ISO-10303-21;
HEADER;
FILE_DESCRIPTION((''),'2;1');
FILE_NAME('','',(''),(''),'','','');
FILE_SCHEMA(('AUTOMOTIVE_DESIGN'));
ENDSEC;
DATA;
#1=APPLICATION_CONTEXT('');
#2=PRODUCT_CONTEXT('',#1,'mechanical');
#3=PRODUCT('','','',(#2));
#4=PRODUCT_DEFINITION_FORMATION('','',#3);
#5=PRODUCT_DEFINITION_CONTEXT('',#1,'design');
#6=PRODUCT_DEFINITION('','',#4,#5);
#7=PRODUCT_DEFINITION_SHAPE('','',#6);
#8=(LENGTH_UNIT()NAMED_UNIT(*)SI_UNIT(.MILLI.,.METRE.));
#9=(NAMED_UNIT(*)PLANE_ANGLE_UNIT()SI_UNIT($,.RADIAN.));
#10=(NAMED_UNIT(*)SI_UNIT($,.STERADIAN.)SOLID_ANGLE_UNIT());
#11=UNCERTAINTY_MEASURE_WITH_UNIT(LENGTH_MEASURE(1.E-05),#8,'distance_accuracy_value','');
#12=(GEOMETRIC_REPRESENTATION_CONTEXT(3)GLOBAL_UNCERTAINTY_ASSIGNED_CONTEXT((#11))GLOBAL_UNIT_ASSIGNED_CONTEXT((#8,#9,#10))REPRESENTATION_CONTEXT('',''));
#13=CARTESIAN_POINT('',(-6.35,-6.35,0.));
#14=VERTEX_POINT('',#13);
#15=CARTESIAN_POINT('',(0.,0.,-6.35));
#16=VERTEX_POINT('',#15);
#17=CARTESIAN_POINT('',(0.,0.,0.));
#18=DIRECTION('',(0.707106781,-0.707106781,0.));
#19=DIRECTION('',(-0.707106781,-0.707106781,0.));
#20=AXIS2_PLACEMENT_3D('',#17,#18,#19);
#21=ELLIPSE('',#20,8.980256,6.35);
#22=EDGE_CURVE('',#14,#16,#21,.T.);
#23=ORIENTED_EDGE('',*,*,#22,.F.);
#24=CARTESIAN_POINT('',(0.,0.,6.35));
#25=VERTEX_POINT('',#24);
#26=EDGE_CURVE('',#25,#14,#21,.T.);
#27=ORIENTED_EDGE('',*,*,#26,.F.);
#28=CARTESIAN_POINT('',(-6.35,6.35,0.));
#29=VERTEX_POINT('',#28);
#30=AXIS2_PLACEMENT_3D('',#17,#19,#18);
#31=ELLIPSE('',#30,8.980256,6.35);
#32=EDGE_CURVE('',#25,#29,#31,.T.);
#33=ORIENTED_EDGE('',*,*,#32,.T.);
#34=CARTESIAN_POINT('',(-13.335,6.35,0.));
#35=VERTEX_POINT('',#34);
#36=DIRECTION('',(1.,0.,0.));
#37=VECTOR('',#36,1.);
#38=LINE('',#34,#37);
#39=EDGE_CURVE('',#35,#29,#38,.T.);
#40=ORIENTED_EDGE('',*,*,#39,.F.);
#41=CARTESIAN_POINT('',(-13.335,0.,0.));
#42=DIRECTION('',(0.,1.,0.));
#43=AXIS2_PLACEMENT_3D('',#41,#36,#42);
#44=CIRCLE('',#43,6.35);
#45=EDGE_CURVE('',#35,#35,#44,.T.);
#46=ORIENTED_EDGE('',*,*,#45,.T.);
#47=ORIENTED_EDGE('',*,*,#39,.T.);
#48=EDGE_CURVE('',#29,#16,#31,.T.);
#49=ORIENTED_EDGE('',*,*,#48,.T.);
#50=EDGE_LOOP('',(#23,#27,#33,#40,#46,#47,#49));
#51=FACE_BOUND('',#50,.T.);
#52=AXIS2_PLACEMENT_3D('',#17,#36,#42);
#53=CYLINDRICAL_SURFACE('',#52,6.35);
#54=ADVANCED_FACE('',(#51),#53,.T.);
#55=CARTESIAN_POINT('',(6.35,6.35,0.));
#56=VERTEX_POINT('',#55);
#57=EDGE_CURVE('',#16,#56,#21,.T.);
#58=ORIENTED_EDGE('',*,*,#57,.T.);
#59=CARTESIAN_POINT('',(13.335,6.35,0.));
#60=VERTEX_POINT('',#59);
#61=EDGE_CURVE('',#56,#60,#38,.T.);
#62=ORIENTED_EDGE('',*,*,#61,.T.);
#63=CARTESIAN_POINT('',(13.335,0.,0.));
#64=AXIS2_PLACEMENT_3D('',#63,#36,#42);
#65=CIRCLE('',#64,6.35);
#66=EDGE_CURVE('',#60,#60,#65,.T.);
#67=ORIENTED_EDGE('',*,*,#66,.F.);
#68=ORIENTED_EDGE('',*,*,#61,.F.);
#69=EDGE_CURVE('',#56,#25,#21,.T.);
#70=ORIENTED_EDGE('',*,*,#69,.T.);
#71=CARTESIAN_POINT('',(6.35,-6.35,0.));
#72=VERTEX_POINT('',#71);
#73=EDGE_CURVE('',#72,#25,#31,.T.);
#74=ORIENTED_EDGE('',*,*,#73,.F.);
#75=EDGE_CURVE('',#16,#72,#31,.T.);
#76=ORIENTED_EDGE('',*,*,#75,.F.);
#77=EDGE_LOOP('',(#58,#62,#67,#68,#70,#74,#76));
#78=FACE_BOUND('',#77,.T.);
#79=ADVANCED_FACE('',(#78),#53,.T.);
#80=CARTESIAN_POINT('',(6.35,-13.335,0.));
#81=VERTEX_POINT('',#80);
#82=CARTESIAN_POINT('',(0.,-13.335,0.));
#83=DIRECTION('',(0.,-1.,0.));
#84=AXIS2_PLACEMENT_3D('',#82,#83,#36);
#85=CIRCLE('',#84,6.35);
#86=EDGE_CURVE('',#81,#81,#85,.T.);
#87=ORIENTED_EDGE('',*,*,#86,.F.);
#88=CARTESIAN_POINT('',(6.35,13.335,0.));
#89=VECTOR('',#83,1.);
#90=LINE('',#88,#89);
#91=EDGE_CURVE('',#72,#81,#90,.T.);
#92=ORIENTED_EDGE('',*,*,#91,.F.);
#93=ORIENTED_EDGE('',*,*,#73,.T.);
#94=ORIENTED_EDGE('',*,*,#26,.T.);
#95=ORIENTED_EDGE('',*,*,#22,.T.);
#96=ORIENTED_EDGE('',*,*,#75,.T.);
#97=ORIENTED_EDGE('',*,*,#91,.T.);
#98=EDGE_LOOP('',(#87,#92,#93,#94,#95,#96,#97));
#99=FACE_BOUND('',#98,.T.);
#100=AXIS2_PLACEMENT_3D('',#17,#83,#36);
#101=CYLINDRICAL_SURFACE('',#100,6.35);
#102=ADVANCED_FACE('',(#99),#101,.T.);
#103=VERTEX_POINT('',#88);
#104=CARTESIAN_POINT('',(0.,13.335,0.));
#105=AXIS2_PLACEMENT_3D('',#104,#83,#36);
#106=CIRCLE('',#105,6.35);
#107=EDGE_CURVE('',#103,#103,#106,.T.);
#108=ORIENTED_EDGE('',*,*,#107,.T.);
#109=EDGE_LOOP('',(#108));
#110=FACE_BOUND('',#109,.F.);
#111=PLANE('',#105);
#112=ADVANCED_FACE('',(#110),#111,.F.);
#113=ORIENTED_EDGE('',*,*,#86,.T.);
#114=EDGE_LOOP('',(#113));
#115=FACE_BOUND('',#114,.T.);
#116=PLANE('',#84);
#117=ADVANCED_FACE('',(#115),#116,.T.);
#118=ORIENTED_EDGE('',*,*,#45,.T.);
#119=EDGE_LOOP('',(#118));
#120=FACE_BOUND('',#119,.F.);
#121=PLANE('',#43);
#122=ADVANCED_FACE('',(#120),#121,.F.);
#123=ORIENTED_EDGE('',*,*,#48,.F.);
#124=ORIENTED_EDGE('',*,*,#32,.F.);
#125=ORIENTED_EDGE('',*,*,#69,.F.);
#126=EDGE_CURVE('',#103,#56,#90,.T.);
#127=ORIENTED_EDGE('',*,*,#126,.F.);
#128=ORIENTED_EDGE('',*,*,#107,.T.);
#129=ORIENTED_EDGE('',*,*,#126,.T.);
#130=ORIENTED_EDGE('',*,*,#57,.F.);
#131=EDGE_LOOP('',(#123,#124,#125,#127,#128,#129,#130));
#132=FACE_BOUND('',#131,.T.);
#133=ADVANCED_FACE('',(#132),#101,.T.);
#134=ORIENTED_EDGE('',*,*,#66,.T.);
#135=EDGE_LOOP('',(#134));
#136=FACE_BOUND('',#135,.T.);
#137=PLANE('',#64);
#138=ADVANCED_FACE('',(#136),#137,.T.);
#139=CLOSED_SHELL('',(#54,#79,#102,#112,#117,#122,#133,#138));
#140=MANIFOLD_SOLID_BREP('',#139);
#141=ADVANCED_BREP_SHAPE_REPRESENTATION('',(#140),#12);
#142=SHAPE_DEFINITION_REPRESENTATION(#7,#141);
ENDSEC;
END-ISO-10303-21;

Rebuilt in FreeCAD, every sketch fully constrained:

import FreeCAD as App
import Part
import Sketcher
Q = App.Units.Quantity

doc = App.newDocument("Part")
body = doc.addObject("PartDesign::Body", "Body")

sketch1 = body.newObject("Sketcher::SketchObject", "Sketch")
sketch1.AttachmentSupport = (doc.getObject("XZ_Plane"), [""])
sketch1.MapMode = "FlatFace"
sketch1.addGeometry(Part.Circle(App.Vector(0, 0, 0), App.Vector(0, 0, 1), 6), False)
sketch1.addConstraint(Sketcher.Constraint("Coincident", 0, 3, -1, 1))
sketch1.addConstraint(Sketcher.Constraint("Diameter", 0, Q("0.5 in")))
pad1 = body.newObject("PartDesign::Pad", "Pad")
pad1.Profile = sketch1
pad1.Length = Q("1.05 in")
pad1.Midplane = True

sketch2 = body.newObject("Sketcher::SketchObject", "Sketch001")
sketch2.AttachmentSupport = (doc.getObject("YZ_Plane"), [""])
sketch2.MapMode = "FlatFace"
sketch2.addGeometry(Part.Circle(App.Vector(0, 0, 0), App.Vector(0, 0, 1), 6), False)
sketch2.addConstraint(Sketcher.Constraint("Coincident", 0, 3, -1, 1))
sketch2.addConstraint(Sketcher.Constraint("Diameter", 0, Q("0.5 in")))
pad2 = body.newObject("PartDesign::Pad", "Pad001")
pad2.Profile = sketch2
pad2.Length = Q("1.05 in")
pad2.Midplane = True

doc.recompute()
